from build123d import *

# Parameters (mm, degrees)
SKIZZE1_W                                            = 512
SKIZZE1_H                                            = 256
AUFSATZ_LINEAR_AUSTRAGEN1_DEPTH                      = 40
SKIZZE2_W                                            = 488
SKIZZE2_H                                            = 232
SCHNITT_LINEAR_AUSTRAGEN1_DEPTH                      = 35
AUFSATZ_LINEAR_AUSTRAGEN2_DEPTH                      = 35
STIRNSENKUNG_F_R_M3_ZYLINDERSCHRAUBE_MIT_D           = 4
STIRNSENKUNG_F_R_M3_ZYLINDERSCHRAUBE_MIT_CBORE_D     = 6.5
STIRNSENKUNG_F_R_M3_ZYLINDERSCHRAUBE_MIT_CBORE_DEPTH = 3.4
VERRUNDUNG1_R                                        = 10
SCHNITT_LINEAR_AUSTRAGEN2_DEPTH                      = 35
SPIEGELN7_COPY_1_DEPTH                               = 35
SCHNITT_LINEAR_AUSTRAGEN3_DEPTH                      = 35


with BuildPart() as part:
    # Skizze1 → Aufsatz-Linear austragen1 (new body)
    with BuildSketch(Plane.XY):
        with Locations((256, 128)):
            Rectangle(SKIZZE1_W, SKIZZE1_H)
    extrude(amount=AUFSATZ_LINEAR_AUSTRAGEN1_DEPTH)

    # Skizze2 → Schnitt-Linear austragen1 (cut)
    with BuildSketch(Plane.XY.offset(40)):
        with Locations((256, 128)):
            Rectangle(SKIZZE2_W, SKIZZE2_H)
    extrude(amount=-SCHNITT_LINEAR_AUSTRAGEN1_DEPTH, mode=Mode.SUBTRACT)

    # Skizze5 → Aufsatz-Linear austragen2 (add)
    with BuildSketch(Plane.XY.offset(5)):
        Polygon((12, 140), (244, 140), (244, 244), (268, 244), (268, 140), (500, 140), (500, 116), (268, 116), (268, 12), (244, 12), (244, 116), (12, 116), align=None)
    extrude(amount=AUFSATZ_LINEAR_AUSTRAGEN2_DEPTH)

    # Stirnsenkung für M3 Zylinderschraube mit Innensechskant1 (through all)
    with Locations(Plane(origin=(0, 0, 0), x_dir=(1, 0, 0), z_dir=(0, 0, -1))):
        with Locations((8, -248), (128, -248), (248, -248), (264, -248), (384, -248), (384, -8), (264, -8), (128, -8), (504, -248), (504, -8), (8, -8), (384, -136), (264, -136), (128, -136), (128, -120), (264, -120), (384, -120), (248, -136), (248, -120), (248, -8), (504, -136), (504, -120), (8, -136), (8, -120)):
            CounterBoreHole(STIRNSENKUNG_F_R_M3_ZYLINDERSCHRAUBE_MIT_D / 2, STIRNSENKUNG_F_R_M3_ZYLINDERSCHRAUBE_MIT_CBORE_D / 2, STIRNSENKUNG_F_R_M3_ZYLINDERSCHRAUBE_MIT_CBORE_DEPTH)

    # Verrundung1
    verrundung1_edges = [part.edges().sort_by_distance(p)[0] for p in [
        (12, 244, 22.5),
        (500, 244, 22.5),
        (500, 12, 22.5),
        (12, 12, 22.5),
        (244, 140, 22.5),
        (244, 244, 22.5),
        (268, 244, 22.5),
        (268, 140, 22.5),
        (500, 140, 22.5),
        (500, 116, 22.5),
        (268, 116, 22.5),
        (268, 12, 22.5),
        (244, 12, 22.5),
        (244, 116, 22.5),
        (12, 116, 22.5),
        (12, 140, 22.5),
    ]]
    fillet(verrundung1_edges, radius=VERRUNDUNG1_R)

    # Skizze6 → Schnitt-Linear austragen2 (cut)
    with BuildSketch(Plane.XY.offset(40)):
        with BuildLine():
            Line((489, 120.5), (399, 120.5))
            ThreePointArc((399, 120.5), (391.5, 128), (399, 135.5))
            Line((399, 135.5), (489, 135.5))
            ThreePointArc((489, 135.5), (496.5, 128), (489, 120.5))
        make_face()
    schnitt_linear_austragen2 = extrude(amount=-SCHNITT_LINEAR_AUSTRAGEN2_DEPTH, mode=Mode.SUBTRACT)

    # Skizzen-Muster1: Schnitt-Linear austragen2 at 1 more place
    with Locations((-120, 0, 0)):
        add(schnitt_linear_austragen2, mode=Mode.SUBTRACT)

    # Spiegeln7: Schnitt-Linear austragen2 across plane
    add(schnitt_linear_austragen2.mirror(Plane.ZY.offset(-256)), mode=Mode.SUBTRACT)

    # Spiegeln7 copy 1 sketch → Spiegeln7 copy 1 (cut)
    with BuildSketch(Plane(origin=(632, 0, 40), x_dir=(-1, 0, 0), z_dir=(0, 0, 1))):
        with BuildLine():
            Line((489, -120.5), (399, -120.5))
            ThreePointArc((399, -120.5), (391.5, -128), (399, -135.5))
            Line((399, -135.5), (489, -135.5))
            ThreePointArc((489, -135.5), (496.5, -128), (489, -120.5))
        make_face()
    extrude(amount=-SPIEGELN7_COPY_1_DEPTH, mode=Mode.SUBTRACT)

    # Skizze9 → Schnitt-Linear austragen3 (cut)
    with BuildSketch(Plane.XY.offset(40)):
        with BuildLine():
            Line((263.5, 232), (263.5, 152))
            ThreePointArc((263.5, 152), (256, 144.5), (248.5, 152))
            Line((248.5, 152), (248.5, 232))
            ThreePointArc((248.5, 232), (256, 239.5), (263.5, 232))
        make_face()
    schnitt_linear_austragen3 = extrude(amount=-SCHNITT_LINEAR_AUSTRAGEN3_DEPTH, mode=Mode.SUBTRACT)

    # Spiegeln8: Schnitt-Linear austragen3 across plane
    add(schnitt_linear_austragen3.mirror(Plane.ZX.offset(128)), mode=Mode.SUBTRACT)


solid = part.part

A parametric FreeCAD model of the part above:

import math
import FreeCAD as App
import Part
import Sketcher
Q = App.Units.Quantity


def edges_at(feature, points):
    """Names of the edges that pass closest to the given points."""
    edges = feature.Shape.Edges
    near = lambda p: min(range(len(edges)), key=lambda i: edges[i].distToShape(Part.Vertex(*p))[0])
    return sorted({f"Edge{near(p) + 1}" for p in points})

doc = App.newDocument("Part")
body = doc.addObject("PartDesign::Body", "Body")

# Sketch on XY plane
sketch1 = doc.addObject("Sketcher::SketchObject", "Sketch")
body.addObject(sketch1)
sketch1.AttachmentSupport = (doc.XY_Plane, [""])
sketch1.MapMode = "FlatFace"
sketch1.addGeometry([
    Part.LineSegment(App.Vector(0, 256, 0), App.Vector(0, 0, 0)),
    Part.LineSegment(App.Vector(0, 0, 0), App.Vector(512, 0, 0)),
    Part.LineSegment(App.Vector(512, 0, 0), App.Vector(512, 256, 0)),
    Part.LineSegment(App.Vector(512, 256, 0), App.Vector(0, 256, 0)),
], False)
sketch1.addConstraint([
    Sketcher.Constraint("Coincident", 0, 2, 1, 1),
    Sketcher.Constraint("Coincident", 1, 2, 2, 1),
    Sketcher.Constraint("Coincident", 2, 2, 3, 1),
    Sketcher.Constraint("Coincident", 3, 2, 0, 1),
    Sketcher.Constraint("Vertical", 0),
    Sketcher.Constraint("Horizontal", 1),
    Sketcher.Constraint("Vertical", 2),
    Sketcher.Constraint("Horizontal", 3),
    Sketcher.Constraint("Coincident", 0, 2, -1, 1),
    Sketcher.Constraint("DistanceX", 1, 1, 1, 2, Q("512 mm")),
    Sketcher.Constraint("DistanceY", 0, 2, 0, 1, Q("256 mm")),
])
pad1 = doc.addObject("PartDesign::Pad", "Pad")
body.addObject(pad1)
pad1.Profile = sketch1
pad1.Length = 40

# Sketch on XY plane
sketch2 = doc.addObject("Sketcher::SketchObject", "Sketch001")
body.addObject(sketch2)
sketch2.AttachmentSupport = (doc.XY_Plane, [""])
sketch2.MapMode = "FlatFace"
sketch2.AttachmentOffset = App.Placement(App.Vector(0, 0, 40), App.Rotation())
sketch2.addGeometry([
    Part.LineSegment(App.Vector(12, 244, 0), App.Vector(12, 12, 0)),
    Part.LineSegment(App.Vector(12, 12, 0), App.Vector(500, 12, 0)),
    Part.LineSegment(App.Vector(500, 12, 0), App.Vector(500, 244, 0)),
    Part.LineSegment(App.Vector(500, 244, 0), App.Vector(12, 244, 0)),
], False)
sketch2.addConstraint([
    Sketcher.Constraint("Coincident", 0, 2, 1, 1),
    Sketcher.Constraint("Coincident", 1, 2, 2, 1),
    Sketcher.Constraint("Coincident", 2, 2, 3, 1),
    Sketcher.Constraint("Coincident", 3, 2, 0, 1),
    Sketcher.Constraint("Vertical", 0),
    Sketcher.Constraint("Horizontal", 1),
    Sketcher.Constraint("Vertical", 2),
    Sketcher.Constraint("Horizontal", 3),
    Sketcher.Constraint("DistanceX", 1, 1, 1, 2, Q("488 mm")),
    Sketcher.Constraint("DistanceY", 0, 2, 0, 1, Q("232 mm")),
    Sketcher.Constraint("DistanceX", -1, 1, 0, 2, Q("12 mm")),
    Sketcher.Constraint("DistanceY", -1, 1, 0, 2, Q("12 mm")),
])
pocket1 = doc.addObject("PartDesign::Pocket", "Pocket")
body.addObject(pocket1)
pocket1.Profile = sketch2
pocket1.Length = 35

# Sketch on XY plane
sketch3 = doc.addObject("Sketcher::SketchObject", "Sketch002")
body.addObject(sketch3)
sketch3.AttachmentSupport = (doc.XY_Plane, [""])
sketch3.MapMode = "FlatFace"
sketch3.AttachmentOffset = App.Placement(App.Vector(0, 0, 5), App.Rotation())
sketch3.addGeometry([
    Part.LineSegment(App.Vector(244, 140, 0), App.Vector(12, 140, 0)),  # 0
    Part.LineSegment(App.Vector(12, 140, 0), App.Vector(12, 116, 0)),  # 1
    Part.LineSegment(App.Vector(12, 116, 0), App.Vector(244, 116, 0)),  # 2
    Part.LineSegment(App.Vector(244, 116, 0), App.Vector(244, 12, 0)),  # 3
    Part.LineSegment(App.Vector(244, 12, 0), App.Vector(268, 12, 0)),  # 4
    Part.LineSegment(App.Vector(268, 12, 0), App.Vector(268, 116, 0)),  # 5
    Part.LineSegment(App.Vector(268, 116, 0), App.Vector(500, 116, 0)),  # 6
    Part.LineSegment(App.Vector(500, 116, 0), App.Vector(500, 140, 0)),  # 7
    Part.LineSegment(App.Vector(500, 140, 0), App.Vector(268, 140, 0)),  # 8
    Part.LineSegment(App.Vector(268, 140, 0), App.Vector(268, 244, 0)),  # 9
    Part.LineSegment(App.Vector(268, 244, 0), App.Vector(244, 244, 0)),  # 10
    Part.LineSegment(App.Vector(244, 244, 0), App.Vector(244, 140, 0)),  # 11
], False)
sketch3.addConstraint([
    Sketcher.Constraint("Coincident", 0, 2, 1, 1),
    Sketcher.Constraint("Coincident", 1, 2, 2, 1),
    Sketcher.Constraint("Coincident", 2, 2, 3, 1),
    Sketcher.Constraint("Coincident", 3, 2, 4, 1),
    Sketcher.Constraint("Coincident", 4, 2, 5, 1),
    Sketcher.Constraint("Coincident", 5, 2, 6, 1),
    Sketcher.Constraint("Coincident", 6, 2, 7, 1),
    Sketcher.Constraint("Coincident", 7, 2, 8, 1),
    Sketcher.Constraint("Coincident", 8, 2, 9, 1),
    Sketcher.Constraint("Coincident", 9, 2, 10, 1),
    Sketcher.Constraint("Coincident", 10, 2, 11, 1),
    Sketcher.Constraint("Coincident", 11, 2, 0, 1),
    Sketcher.Constraint("Horizontal", 0),
    Sketcher.Constraint("Vertical", 1),
    Sketcher.Constraint("Horizontal", 2),
    Sketcher.Constraint("Vertical", 3),
    Sketcher.Constraint("Horizontal", 4),
    Sketcher.Constraint("Vertical", 5),
    Sketcher.Constraint("Horizontal", 6),
    Sketcher.Constraint("Vertical", 7),
    Sketcher.Constraint("Horizontal", 8),
    Sketcher.Constraint("Vertical", 9),
    Sketcher.Constraint("Horizontal", 10),
    Sketcher.Constraint("Vertical", 11),
    Sketcher.Constraint("Horizontal", 2, 2, 5, 2),
    Sketcher.Constraint("Horizontal", 0, 2, 7, 2),
    Sketcher.Constraint("Vertical", 5, 2, 8, 2),
    Sketcher.Constraint("Vertical", 3, 2, 10, 2),
    Sketcher.Constraint("Equal", 2, 6),
    Sketcher.Constraint("Equal", 10, 1),
    Sketcher.Constraint("Equal", 5, 9),
    Sketcher.Constraint("DistanceX", 0, 2, 0, 1, Q("232 mm")),
    Sketcher.Constraint("DistanceX", 4, 1, 4, 2, Q("24 mm")),
    Sketcher.Constraint("DistanceY", 3, 2, 3, 1, Q("104 mm")),
    Sketcher.Constraint("DistanceX", -1, 1, 0, 2, Q("12 mm")),
    Sketcher.Constraint("DistanceY", -1, 1, 0, 2, Q("140 mm")),
])
pad2 = doc.addObject("PartDesign::Pad", "Pad001")
body.addObject(pad2)
pad2.Profile = sketch3
pad2.Length = 35

# Sketch on XY plane
sketch4 = doc.addObject("Sketcher::SketchObject", "Sketch003")
body.addObject(sketch4)
sketch4.AttachmentSupport = (doc.XY_Plane, [""])
sketch4.MapMode = "FlatFace"
sketch4.addGeometry([
    Part.Circle(App.Vector(8, 248, 0), App.Vector(0, 0, 1), 2),  # 0
    Part.Circle(App.Vector(128, 248, 0), App.Vector(0, 0, 1), 2),  # 1
    Part.Circle(App.Vector(248, 248, 0), App.Vector(0, 0, 1), 2),  # 2
    Part.Circle(App.Vector(264, 248, 0), App.Vector(0, 0, 1), 2),  # 3
    Part.Circle(App.Vector(384, 248, 0), App.Vector(0, 0, 1), 2),  # 4
    Part.Circle(App.Vector(384, 8, 0), App.Vector(0, 0, 1), 2),  # 5
    Part.Circle(App.Vector(264, 8, 0), App.Vector(0, 0, 1), 2),  # 6
    Part.Circle(App.Vector(128, 8, 0), App.Vector(0, 0, 1), 2),  # 7
    Part.Circle(App.Vector(504, 248, 0), App.Vector(0, 0, 1), 2),  # 8
    Part.Circle(App.Vector(504, 8, 0), App.Vector(0, 0, 1), 2),  # 9
    Part.Circle(App.Vector(8, 8, 0), App.Vector(0, 0, 1), 2),  # 10
    Part.Circle(App.Vector(384, 136, 0), App.Vector(0, 0, 1), 2),  # 11
    Part.Circle(App.Vector(264, 136, 0), App.Vector(0, 0, 1), 2),  # 12
    Part.Circle(App.Vector(128, 136, 0), App.Vector(0, 0, 1), 2),  # 13
    Part.Circle(App.Vector(128, 120, 0), App.Vector(0, 0, 1), 2),  # 14
    Part.Circle(App.Vector(264, 120, 0), App.Vector(0, 0, 1), 2),  # 15
    Part.Circle(App.Vector(384, 120, 0), App.Vector(0, 0, 1), 2),  # 16
    Part.Circle(App.Vector(248, 136, 0), App.Vector(0, 0, 1), 2),  # 17
    Part.Circle(App.Vector(248, 120, 0), App.Vector(0, 0, 1), 2),  # 18
    Part.Circle(App.Vector(248, 8, 0), App.Vector(0, 0, 1), 2),  # 19
    Part.Circle(App.Vector(504, 136, 0), App.Vector(0, 0, 1), 2),  # 20
    Part.Circle(App.Vector(504, 120, 0), App.Vector(0, 0, 1), 2),  # 21
    Part.Circle(App.Vector(8, 136, 0), App.Vector(0, 0, 1), 2),  # 22
    Part.Circle(App.Vector(8, 120, 0), App.Vector(0, 0, 1), 2),  # 23
], False)
sketch4.addConstraint([
    Sketcher.Constraint("Equal", 0, 1),
    Sketcher.Constraint("Equal", 1, 2),
    Sketcher.Constraint("Equal", 2, 3),
    Sketcher.Constraint("Equal", 3, 4),
    Sketcher.Constraint("Equal", 4, 5),
    Sketcher.Constraint("Equal", 5, 6),
    Sketcher.Constraint("Equal", 6, 7),
    Sketcher.Constraint("Equal", 7, 8),
    Sketcher.Constraint("Equal", 8, 9),
    Sketcher.Constraint("Equal", 9, 10),
    Sketcher.Constraint("Equal", 10, 11),
    Sketcher.Constraint("Equal", 11, 12),
    Sketcher.Constraint("Equal", 12, 13),
    Sketcher.Constraint("Equal", 13, 14),
    Sketcher.Constraint("Equal", 14, 15),
    Sketcher.Constraint("Equal", 15, 16),
    Sketcher.Constraint("Equal", 16, 17),
    Sketcher.Constraint("Equal", 17, 18),
    Sketcher.Constraint("Equal", 18, 19),
    Sketcher.Constraint("Equal", 19, 20),
    Sketcher.Constraint("Equal", 20, 21),
    Sketcher.Constraint("Equal", 21, 22),
    Sketcher.Constraint("Equal", 22, 23),
    Sketcher.Constraint("Horizontal", 0, 3, 1, 3),
    Sketcher.Constraint("Horizontal", 1, 3, 2, 3),
    Sketcher.Constraint("Horizontal", 2, 3, 3, 3),
    Sketcher.Constraint("Horizontal", 3, 3, 4, 3),
    Sketcher.Constraint("Horizontal", 5, 3, 6, 3),
    Sketcher.Constraint("Horizontal", 6, 3, 7, 3),
    Sketcher.Constraint("Horizontal", 4, 3, 8, 3),
    Sketcher.Constraint("Horizontal", 7, 3, 9, 3),
    Sketcher.Constraint("Horizontal", 9, 3, 10, 3),
    Sketcher.Constraint("Horizontal", 11, 3, 12, 3),
    Sketcher.Constraint("Horizontal", 12, 3, 13, 3),
    Sketcher.Constraint("Horizontal", 14, 3, 15, 3),
    Sketcher.Constraint("Horizontal", 15, 3, 16, 3),
    Sketcher.Constraint("Horizontal", 13, 3, 17, 3),
    Sketcher.Constraint("Horizontal", 16, 3, 18, 3),
    Sketcher.Constraint("Horizontal", 10, 3, 19, 3),
    Sketcher.Constraint("Horizontal", 17, 3, 20, 3),
    Sketcher.Constraint("Horizontal", 18, 3, 21, 3),
    Sketcher.Constraint("Horizontal", 20, 3, 22, 3),
    Sketcher.Constraint("Horizontal", 21, 3, 23, 3),
    Sketcher.Constraint("Vertical", 4, 3, 5, 3),
    Sketcher.Constraint("Vertical", 3, 3, 6, 3),
    Sketcher.Constraint("Vertical", 1, 3, 7, 3),
    Sketcher.Constraint("Vertical", 8, 3, 9, 3),
    Sketcher.Constraint("Vertical", 0, 3, 10, 3),
    Sketcher.Constraint("Vertical", 5, 3, 11, 3),
    Sketcher.Constraint("Vertical", 6, 3, 12, 3),
    Sketcher.Constraint("Vertical", 7, 3, 13, 3),
    Sketcher.Constraint("Vertical", 13, 3, 14, 3),
    Sketcher.Constraint("Vertical", 12, 3, 15, 3),
    Sketcher.Constraint("Vertical", 11, 3, 16, 3),
    Sketcher.Constraint("Vertical", 2, 3, 17, 3),
    Sketcher.Constraint("Vertical", 17, 3, 18, 3),
    Sketcher.Constraint("Vertical", 18, 3, 19, 3),
    Sketcher.Constraint("Vertical", 9, 3, 20, 3),
    Sketcher.Constraint("Vertical", 20, 3, 21, 3),
    Sketcher.Constraint("Vertical", 10, 3, 22, 3),
    Sketcher.Constraint("Vertical", 22, 3, 23, 3),
    Sketcher.Constraint("Diameter", 0, Q("4 mm")),
    Sketcher.Constraint("DistanceX", -1, 1, 0, 3, Q("8 mm")),
    Sketcher.Constraint("DistanceY", -1, 1, 0, 3, Q("248 mm")),
    Sketcher.Constraint("DistanceX", -1, 1, 1, 3, Q("128 mm")),
    Sketcher.Constraint("DistanceX", -1, 1, 2, 3, Q("248 mm")),
    Sketcher.Constraint("DistanceX", -1, 1, 3, 3, Q("264 mm")),
    Sketcher.Constraint("DistanceX", -1, 1, 4, 3, Q("384 mm")),
    Sketcher.Constraint("DistanceY", -1, 1, 5, 3, Q("8 mm")),
    Sketcher.Constraint("DistanceX", -1, 1, 8, 3, Q("504 mm")),
    Sketcher.Constraint("DistanceY", -1, 1, 11, 3, Q("136 mm")),
    Sketcher.Constraint("DistanceY", -1, 1, 14, 3, Q("120 mm")),
])
doc.recompute()
hole = doc.addObject("PartDesign::Hole", "Hole")
body.addObject(hole)
hole.Profile = sketch4
hole.ThreadType = "None"
hole.Diameter = 4
hole.DepthType = "ThroughAll"
hole.HoleCutType = "Counterbore"
hole.HoleCutDiameter = 6.5
hole.HoleCutDepth = 3.4
hole.Reversed = True
doc.recompute()

fillet = doc.addObject("PartDesign::Fillet", "Fillet")
body.addObject(fillet)
fillet.Base = (hole, edges_at(hole, [
    (12, 244, 22.5),
    (500, 244, 22.5),
    (500, 12, 22.5),
    (12, 12, 22.5),
    (244, 140, 22.5),
    (244, 244, 22.5),
    (268, 244, 22.5),
    (268, 140, 22.5),
    (500, 140, 22.5),
    (500, 116, 22.5),
    (268, 116, 22.5),
    (268, 12, 22.5),
    (244, 12, 22.5),
    (244, 116, 22.5),
    (12, 116, 22.5),
    (12, 140, 22.5),
]))
fillet.Radius = 10

# Sketch on XY plane
sketch5 = doc.addObject("Sketcher::SketchObject", "Sketch004")
body.addObject(sketch5)
sketch5.AttachmentSupport = (doc.XY_Plane, [""])
sketch5.MapMode = "FlatFace"
sketch5.AttachmentOffset = App.Placement(App.Vector(0, 0, 40), App.Rotation())
sketch5.addGeometry([
    Part.LineSegment(App.Vector(399, 120.5, 0), App.Vector(489, 120.5, 0)),
    Part.ArcOfCircle(Part.Circle(App.Vector(489, 128, 0), App.Vector(0, 0, 1), 7.5), math.radians(-90), math.radians(90)),
    Part.LineSegment(App.Vector(489, 135.5, 0), App.Vector(399, 135.5, 0)),
    Part.ArcOfCircle(Part.Circle(App.Vector(399, 128, 0), App.Vector(0, 0, 1), 7.5), math.radians(90), math.radians(270)),
], False)
sketch5.addConstraint([
    Sketcher.Constraint("Tangent", 0, 2, 1, 1),
    Sketcher.Constraint("Tangent", 1, 2, 2, 1),
    Sketcher.Constraint("Tangent", 2, 2, 3, 1),
    Sketcher.Constraint("Tangent", 3, 2, 0, 1),
    Sketcher.Constraint("Horizontal", 0),
    Sketcher.Constraint("Horizontal", 2),
    Sketcher.Constraint("Radius", 1, Q("7.5 mm")),
    Sketcher.Constraint("DistanceX", 0, 1, 0, 2, Q("90 mm")),
    Sketcher.Constraint("DistanceX", -1, 1, 1, 3, Q("489 mm")),
    Sketcher.Constraint("DistanceY", -1, 1, 1, 3, Q("128 mm")),
])
pocket2 = doc.addObject("PartDesign::Pocket", "Pocket001")
body.addObject(pocket2)
pocket2.Profile = sketch5
pocket2.Length = 35
doc.recompute()

linearpattern = doc.addObject("PartDesign::LinearPattern", "LinearPattern")
body.addObject(linearpattern)
linearpattern.Originals = [pocket2]
linearpattern.Direction = (doc.X_Axis, [""])
linearpattern.Mode = "offset"
linearpattern.Offset = 120
linearpattern.Occurrences = 2
linearpattern.Reversed = True
body.Tip = linearpattern
doc.recompute()

datumplane = doc.addObject("PartDesign::Plane", "DatumPlane")
body.addObject(datumplane)
datumplane.AttachmentSupport = (doc.YZ_Plane, [""])
datumplane.MapMode = "FlatFace"
datumplane.AttachmentOffset = App.Placement(App.Vector(0, 0, 256), App.Rotation())
mirrored = doc.addObject("PartDesign::Mirrored", "Mirrored")
body.addObject(mirrored)
mirrored.Originals = [pocket2]
mirrored.MirrorPlane = (datumplane, [""])
body.Tip = mirrored

# Sketch on XY plane
sketch6 = doc.addObject("Sketcher::SketchObject", "Sketch005")
body.addObject(sketch6)
sketch6.AttachmentSupport = (doc.XY_Plane, [""])
sketch6.MapMode = "FlatFace"
sketch6.AttachmentOffset = App.Placement(App.Vector(0, 0, 40), App.Rotation())
sketch6.addGeometry([
    Part.LineSegment(App.Vector(143, 120.5, 0), App.Vector(233, 120.5, 0)),
    Part.ArcOfCircle(Part.Circle(App.Vector(233, 128, 0), App.Vector(0, 0, 1), 7.5), math.radians(-90), math.radians(90)),
    Part.LineSegment(App.Vector(233, 135.5, 0), App.Vector(143, 135.5, 0)),
    Part.ArcOfCircle(Part.Circle(App.Vector(143, 128, 0), App.Vector(0, 0, 1), 7.5), math.radians(90), math.radians(270)),
], False)
sketch6.addConstraint([
    Sketcher.Constraint("Tangent", 0, 2, 1, 1),
    Sketcher.Constraint("Tangent", 1, 2, 2, 1),
    Sketcher.Constraint("Tangent", 2, 2, 3, 1),
    Sketcher.Constraint("Tangent", 3, 2, 0, 1),
    Sketcher.Constraint("Horizontal", 0),
    Sketcher.Constraint("Horizontal", 2),
    Sketcher.Constraint("Radius", 1, Q("7.5 mm")),
    Sketcher.Constraint("DistanceX", 0, 1, 0, 2, Q("90 mm")),
    Sketcher.Constraint("DistanceX", -1, 1, 1, 3, Q("233 mm")),
    Sketcher.Constraint("DistanceY", -1, 1, 1, 3, Q("128 mm")),
])
pocket3 = doc.addObject("PartDesign::Pocket", "Pocket002")
body.addObject(pocket3)
pocket3.Profile = sketch6
pocket3.Length = 35

# Sketch on XY plane
sketch7 = doc.addObject("Sketcher::SketchObject", "Sketch006")
body.addObject(sketch7)
sketch7.AttachmentSupport = (doc.XY_Plane, [""])
sketch7.MapMode = "FlatFace"
sketch7.AttachmentOffset = App.Placement(App.Vector(0, 0, 40), App.Rotation())
sketch7.addGeometry([
    Part.LineSegment(App.Vector(263.5, 152, 0), App.Vector(263.5, 232, 0)),
    Part.ArcOfCircle(Part.Circle(App.Vector(256, 232, 0), App.Vector(0, 0, 1), 7.5), math.radians(0), math.radians(180)),
    Part.LineSegment(App.Vector(248.5, 232, 0), App.Vector(248.5, 152, 0)),
    Part.ArcOfCircle(Part.Circle(App.Vector(256, 152, 0), App.Vector(0, 0, 1), 7.5), math.radians(180), math.radians(360)),
], False)
sketch7.addConstraint([
    Sketcher.Constraint("Tangent", 0, 2, 1, 1),
    Sketcher.Constraint("Tangent", 1, 2, 2, 1),
    Sketcher.Constraint("Tangent", 2, 2, 3, 1),
    Sketcher.Constraint("Tangent", 3, 2, 0, 1),
    Sketcher.Constraint("Vertical", 0),
    Sketcher.Constraint("Vertical", 2),
    Sketcher.Constraint("Radius", 1, Q("7.5 mm")),
    Sketcher.Constraint("DistanceY", 0, 1, 0, 2, Q("80 mm")),
    Sketcher.Constraint("DistanceX", -1, 1, 1, 3, Q("256 mm")),
    Sketcher.Constraint("DistanceY", -1, 1, 1, 3, Q("232 mm")),
])
pocket4 = doc.addObject("PartDesign::Pocket", "Pocket003")
body.addObject(pocket4)
pocket4.Profile = sketch7
pocket4.Length = 35
doc.recompute()

datumplane2 = doc.addObject("PartDesign::Plane", "DatumPlane001")
body.addObject(datumplane2)
datumplane2.AttachmentSupport = (doc.XZ_Plane, [""])
datumplane2.MapMode = "FlatFace"
datumplane2.AttachmentOffset = App.Placement(App.Vector(0, 0, -128), App.Rotation())
mirrored2 = doc.addObject("PartDesign::Mirrored", "Mirrored001")
body.addObject(mirrored2)
mirrored2.Originals = [pocket4]
mirrored2.MirrorPlane = (datumplane2, [""])
body.Tip = mirrored2

doc.recompute()
